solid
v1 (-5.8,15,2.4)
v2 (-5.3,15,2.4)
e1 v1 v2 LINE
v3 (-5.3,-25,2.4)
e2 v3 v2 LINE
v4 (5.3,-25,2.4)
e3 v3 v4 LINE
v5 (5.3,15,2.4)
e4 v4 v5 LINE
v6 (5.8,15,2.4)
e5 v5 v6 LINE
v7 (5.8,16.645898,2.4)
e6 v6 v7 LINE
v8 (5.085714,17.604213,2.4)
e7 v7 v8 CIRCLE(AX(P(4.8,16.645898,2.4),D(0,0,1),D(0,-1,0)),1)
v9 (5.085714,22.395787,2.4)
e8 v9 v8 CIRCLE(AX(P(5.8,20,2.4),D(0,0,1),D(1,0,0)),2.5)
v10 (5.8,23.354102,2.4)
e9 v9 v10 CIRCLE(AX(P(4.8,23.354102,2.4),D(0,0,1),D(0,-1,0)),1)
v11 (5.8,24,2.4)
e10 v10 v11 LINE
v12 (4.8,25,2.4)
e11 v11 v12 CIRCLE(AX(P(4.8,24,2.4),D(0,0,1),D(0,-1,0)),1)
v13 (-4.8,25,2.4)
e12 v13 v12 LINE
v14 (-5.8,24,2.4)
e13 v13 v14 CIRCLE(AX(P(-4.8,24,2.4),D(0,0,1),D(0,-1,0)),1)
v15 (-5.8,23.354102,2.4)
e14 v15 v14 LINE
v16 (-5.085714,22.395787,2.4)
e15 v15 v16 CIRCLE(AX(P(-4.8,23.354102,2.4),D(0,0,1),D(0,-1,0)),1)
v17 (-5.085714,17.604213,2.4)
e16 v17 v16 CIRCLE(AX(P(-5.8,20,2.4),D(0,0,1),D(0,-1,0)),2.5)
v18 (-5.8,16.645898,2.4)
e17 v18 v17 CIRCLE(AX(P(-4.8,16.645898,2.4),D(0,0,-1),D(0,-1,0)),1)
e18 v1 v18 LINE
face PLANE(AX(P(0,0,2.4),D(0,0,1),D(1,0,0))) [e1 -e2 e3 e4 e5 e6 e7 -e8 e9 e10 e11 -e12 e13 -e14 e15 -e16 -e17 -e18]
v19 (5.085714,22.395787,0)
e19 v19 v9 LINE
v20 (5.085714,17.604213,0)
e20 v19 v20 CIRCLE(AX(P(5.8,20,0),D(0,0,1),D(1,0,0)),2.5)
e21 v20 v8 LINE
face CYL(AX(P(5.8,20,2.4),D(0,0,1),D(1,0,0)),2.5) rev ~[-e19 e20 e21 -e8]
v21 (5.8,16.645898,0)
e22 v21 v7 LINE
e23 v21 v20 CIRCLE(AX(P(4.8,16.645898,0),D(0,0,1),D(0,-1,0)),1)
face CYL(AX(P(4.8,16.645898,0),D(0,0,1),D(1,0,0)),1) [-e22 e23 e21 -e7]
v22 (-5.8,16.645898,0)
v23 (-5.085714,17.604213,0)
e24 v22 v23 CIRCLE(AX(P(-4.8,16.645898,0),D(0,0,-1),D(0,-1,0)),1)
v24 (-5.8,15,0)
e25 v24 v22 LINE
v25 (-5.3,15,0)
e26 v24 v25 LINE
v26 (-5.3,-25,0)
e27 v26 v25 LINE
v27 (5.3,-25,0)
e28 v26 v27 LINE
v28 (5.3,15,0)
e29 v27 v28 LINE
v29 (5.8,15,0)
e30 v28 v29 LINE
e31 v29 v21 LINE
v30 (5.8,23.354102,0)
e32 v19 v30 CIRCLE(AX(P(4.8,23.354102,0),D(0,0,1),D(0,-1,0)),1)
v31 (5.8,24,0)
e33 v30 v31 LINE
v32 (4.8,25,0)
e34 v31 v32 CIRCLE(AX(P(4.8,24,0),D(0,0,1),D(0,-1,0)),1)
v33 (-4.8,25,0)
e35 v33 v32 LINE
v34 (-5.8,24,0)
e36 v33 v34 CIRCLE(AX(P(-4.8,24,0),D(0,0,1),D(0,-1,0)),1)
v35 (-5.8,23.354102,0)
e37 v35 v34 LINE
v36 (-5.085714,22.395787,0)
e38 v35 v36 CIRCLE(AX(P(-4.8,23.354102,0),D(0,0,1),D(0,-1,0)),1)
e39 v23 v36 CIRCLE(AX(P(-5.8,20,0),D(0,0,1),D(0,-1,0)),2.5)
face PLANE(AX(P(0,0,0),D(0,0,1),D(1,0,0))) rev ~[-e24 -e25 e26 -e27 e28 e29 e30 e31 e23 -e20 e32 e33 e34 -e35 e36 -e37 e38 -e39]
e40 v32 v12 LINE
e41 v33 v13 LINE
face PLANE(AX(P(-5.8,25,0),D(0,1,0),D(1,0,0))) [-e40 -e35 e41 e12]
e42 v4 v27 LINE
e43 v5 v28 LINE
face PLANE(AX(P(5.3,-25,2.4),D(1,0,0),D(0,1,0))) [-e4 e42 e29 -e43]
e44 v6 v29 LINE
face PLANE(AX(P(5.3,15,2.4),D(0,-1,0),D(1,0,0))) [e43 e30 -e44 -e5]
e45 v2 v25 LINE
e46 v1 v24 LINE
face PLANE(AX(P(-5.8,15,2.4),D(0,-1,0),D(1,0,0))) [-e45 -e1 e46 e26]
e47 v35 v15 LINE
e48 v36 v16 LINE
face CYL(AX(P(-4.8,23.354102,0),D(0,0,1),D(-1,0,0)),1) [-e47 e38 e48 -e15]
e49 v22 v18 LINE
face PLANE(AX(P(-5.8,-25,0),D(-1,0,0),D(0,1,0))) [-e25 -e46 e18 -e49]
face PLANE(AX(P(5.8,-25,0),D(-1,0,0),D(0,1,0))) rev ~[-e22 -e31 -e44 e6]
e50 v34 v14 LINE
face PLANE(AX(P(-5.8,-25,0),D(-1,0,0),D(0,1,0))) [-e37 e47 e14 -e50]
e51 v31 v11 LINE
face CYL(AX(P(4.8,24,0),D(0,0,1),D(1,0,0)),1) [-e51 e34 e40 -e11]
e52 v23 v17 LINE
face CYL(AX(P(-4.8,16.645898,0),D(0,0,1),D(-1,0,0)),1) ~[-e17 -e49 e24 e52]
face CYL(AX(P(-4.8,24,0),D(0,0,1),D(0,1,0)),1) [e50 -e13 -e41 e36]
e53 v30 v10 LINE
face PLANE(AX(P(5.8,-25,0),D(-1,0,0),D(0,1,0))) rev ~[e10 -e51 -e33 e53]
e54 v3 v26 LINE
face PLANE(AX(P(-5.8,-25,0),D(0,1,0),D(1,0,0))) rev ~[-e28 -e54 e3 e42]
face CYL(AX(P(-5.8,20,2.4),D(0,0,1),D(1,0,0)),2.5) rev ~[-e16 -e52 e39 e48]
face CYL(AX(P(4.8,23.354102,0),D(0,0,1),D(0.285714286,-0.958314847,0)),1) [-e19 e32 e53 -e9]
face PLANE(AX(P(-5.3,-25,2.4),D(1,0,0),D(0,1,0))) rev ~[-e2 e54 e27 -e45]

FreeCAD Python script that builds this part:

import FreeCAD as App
import Part
import Sketcher

V = App.Vector


def edges_at(feature, points):
    """Names of the edges that pass closest to the given points."""
    edges = feature.Shape.Edges
    near = lambda p: min(range(len(edges)), key=lambda i: edges[i].distToShape(Part.Vertex(*p))[0])
    return sorted({f"Edge{near(p) + 1}" for p in points})


def add_polygon(sketch, points):
    """Adds a closed chain of lines whose ends are joined by coincident constraints."""
    first, n = sketch.GeometryCount, len(points)
    for a, b in zip(points, points[1:] + points[:1]):
        sketch.addGeometry(Part.LineSegment(App.Vector(*a, 0), App.Vector(*b, 0)), False)
    for i in range(n):
        sketch.addConstraint(Sketcher.Constraint("Coincident", first + i, 2, first + (i + 1) % n, 1))

doc = App.newDocument("Part")
params = doc.addObject("Spreadsheet::Sheet", "Params")
for row, (alias, value) in enumerate([
    ("sketch1_height", "50 mm"),
    ("sketch1_width", "11.6 mm"),
    ("pad1_length", "2.4 mm"),
    ("sketch2_diameter", "5 mm"),
    ("sketch2_height", "40 mm"),
    ("sketch2_width", "0.5 mm"),
    ("pocket1_length", "25 mm"),
    ("fillet_radius", "1 mm"),
], start=1):
    params.set(f"A{row}", alias)
    params.set(f"B{row}", "=" + value)
    params.setAlias(f"B{row}", alias)

body = doc.addObject("PartDesign::Body", "Body")

# Sketch on XY plane
sketch1 = body.newObject("Sketcher::SketchObject", "Sketch")
sketch1.AttachmentSupport = (doc.getObject("XY_Plane"), [""])
sketch1.MapMode = "FlatFace"
add_polygon(sketch1, [(-5.8, 25), (-5.8, -25), (5.8, -25), (5.8, 25)])  # lines 0-3
sketch1.addConstraint(Sketcher.Constraint("Vertical", 0))
sketch1.addConstraint(Sketcher.Constraint("Horizontal", 1))
sketch1.addConstraint(Sketcher.Constraint("Vertical", 2))
sketch1.addConstraint(Sketcher.Constraint("Horizontal", 3))
sketch1.addConstraint(Sketcher.Constraint("Symmetric", 0, 2, 2, 2, -1, 1))
sketch1.addConstraint(Sketcher.Constraint("DistanceY", 0, 2, 0, 1, 50.0))
sketch1.addConstraint(Sketcher.Constraint("DistanceX", 1, 1, 1, 2, 11.6))
sketch1.setExpression("Constraints[9]", "Params.sketch1_height")
sketch1.setExpression("Constraints[10]", "Params.sketch1_width")
pad1 = body.newObject("PartDesign::Pad", "Pad")
pad1.Profile = sketch1
pad1.setExpression("Length", "Params.pad1_length")

# Sketch on XY plane
sketch2 = body.newObject("Sketcher::SketchObject", "Sketch001")
sketch2.AttachmentSupport = (doc.getObject("XY_Plane"), [""])
sketch2.MapMode = "FlatFace"
sketch2.AttachmentOffset = App.Placement(V(0, 0, 2.4), App.Rotation())
sketch2.addGeometry(Part.Circle(V(5.8, 20, 0), V(0, 0, 1), 2.5), False)  # 0
add_polygon(sketch2, [(5.3, 15), (5.3, -25), (5.8, -25), (5.8, 15)])  # lines 1-4
sketch2.addGeometry(Part.Circle(V(-5.8, 20, 0), V(0, 0, 1), 2.5), False)  # 5
add_polygon(sketch2, [(-5.8, 15), (-5.8, -25), (-5.3, -25), (-5.3, 15)])  # lines 6-9
sketch2.addConstraint(Sketcher.Constraint("Vertical", 1))
sketch2.addConstraint(Sketcher.Constraint("Horizontal", 2))
sketch2.addConstraint(Sketcher.Constraint("Vertical", 3))
sketch2.addConstraint(Sketcher.Constraint("Horizontal", 4))
sketch2.addConstraint(Sketcher.Constraint("Vertical", 6))
sketch2.addConstraint(Sketcher.Constraint("Horizontal", 7))
sketch2.addConstraint(Sketcher.Constraint("Vertical", 8))
sketch2.addConstraint(Sketcher.Constraint("Horizontal", 9))
sketch2.addConstraint(Sketcher.Constraint("Equal", 0, 5))
sketch2.addConstraint(Sketcher.Constraint("Symmetric", 0, 3, 5, 3, -2))
sketch2.addConstraint(Sketcher.Constraint("Symmetric", 2, 2, 6, 2, -2))
sketch2.addConstraint(Sketcher.Constraint("Symmetric", 4, 2, 8, 2, -2))
sketch2.addConstraint(Sketcher.Constraint("Vertical", 0, 3, 2, 2))
sketch2.addConstraint(Sketcher.Constraint("Diameter", 0, 5.0))
sketch2.addConstraint(Sketcher.Constraint("DistanceY", 1, 2, 1, 1, 40.0))
sketch2.addConstraint(Sketcher.Constraint("DistanceX", 2, 1, 2, 2, 0.5))
sketch2.addConstraint(Sketcher.Constraint("DistanceY", -1, 1, 0, 3, 20.0))
sketch2.addConstraint(Sketcher.Constraint("DistanceY", 1, 2, -1, 1, 25.0))
sketch2.addConstraint(Sketcher.Constraint("DistanceX", -1, 1, 0, 3, 5.8))
sketch2.setExpression("Constraints[21]", "Params.sketch2_diameter")
sketch2.setExpression("Constraints[22]", "Params.sketch2_height")
sketch2.setExpression("Constraints[23]", "Params.sketch2_width")
pocket1 = body.newObject("PartDesign::Pocket", "Pocket")
pocket1.Profile = sketch2
pocket1.setExpression("Length", "Params.pocket1_length")
doc.recompute()

fillet = body.newObject("PartDesign::Fillet", "Fillet")
fillet.Base = (pocket1, edges_at(pocket1, [
    (5.8, 22.5, 1.2),
    (5.8, 17.5, 1.2),
    (-5.8, 22.5, 1.2),
    (-5.8, 17.5, 1.2),
    (5.8, 25, 1.2),
    (-5.8, 25, 1.2),
]))
fillet.setExpression("Radius", "Params.fillet_radius")

doc.recompute()
